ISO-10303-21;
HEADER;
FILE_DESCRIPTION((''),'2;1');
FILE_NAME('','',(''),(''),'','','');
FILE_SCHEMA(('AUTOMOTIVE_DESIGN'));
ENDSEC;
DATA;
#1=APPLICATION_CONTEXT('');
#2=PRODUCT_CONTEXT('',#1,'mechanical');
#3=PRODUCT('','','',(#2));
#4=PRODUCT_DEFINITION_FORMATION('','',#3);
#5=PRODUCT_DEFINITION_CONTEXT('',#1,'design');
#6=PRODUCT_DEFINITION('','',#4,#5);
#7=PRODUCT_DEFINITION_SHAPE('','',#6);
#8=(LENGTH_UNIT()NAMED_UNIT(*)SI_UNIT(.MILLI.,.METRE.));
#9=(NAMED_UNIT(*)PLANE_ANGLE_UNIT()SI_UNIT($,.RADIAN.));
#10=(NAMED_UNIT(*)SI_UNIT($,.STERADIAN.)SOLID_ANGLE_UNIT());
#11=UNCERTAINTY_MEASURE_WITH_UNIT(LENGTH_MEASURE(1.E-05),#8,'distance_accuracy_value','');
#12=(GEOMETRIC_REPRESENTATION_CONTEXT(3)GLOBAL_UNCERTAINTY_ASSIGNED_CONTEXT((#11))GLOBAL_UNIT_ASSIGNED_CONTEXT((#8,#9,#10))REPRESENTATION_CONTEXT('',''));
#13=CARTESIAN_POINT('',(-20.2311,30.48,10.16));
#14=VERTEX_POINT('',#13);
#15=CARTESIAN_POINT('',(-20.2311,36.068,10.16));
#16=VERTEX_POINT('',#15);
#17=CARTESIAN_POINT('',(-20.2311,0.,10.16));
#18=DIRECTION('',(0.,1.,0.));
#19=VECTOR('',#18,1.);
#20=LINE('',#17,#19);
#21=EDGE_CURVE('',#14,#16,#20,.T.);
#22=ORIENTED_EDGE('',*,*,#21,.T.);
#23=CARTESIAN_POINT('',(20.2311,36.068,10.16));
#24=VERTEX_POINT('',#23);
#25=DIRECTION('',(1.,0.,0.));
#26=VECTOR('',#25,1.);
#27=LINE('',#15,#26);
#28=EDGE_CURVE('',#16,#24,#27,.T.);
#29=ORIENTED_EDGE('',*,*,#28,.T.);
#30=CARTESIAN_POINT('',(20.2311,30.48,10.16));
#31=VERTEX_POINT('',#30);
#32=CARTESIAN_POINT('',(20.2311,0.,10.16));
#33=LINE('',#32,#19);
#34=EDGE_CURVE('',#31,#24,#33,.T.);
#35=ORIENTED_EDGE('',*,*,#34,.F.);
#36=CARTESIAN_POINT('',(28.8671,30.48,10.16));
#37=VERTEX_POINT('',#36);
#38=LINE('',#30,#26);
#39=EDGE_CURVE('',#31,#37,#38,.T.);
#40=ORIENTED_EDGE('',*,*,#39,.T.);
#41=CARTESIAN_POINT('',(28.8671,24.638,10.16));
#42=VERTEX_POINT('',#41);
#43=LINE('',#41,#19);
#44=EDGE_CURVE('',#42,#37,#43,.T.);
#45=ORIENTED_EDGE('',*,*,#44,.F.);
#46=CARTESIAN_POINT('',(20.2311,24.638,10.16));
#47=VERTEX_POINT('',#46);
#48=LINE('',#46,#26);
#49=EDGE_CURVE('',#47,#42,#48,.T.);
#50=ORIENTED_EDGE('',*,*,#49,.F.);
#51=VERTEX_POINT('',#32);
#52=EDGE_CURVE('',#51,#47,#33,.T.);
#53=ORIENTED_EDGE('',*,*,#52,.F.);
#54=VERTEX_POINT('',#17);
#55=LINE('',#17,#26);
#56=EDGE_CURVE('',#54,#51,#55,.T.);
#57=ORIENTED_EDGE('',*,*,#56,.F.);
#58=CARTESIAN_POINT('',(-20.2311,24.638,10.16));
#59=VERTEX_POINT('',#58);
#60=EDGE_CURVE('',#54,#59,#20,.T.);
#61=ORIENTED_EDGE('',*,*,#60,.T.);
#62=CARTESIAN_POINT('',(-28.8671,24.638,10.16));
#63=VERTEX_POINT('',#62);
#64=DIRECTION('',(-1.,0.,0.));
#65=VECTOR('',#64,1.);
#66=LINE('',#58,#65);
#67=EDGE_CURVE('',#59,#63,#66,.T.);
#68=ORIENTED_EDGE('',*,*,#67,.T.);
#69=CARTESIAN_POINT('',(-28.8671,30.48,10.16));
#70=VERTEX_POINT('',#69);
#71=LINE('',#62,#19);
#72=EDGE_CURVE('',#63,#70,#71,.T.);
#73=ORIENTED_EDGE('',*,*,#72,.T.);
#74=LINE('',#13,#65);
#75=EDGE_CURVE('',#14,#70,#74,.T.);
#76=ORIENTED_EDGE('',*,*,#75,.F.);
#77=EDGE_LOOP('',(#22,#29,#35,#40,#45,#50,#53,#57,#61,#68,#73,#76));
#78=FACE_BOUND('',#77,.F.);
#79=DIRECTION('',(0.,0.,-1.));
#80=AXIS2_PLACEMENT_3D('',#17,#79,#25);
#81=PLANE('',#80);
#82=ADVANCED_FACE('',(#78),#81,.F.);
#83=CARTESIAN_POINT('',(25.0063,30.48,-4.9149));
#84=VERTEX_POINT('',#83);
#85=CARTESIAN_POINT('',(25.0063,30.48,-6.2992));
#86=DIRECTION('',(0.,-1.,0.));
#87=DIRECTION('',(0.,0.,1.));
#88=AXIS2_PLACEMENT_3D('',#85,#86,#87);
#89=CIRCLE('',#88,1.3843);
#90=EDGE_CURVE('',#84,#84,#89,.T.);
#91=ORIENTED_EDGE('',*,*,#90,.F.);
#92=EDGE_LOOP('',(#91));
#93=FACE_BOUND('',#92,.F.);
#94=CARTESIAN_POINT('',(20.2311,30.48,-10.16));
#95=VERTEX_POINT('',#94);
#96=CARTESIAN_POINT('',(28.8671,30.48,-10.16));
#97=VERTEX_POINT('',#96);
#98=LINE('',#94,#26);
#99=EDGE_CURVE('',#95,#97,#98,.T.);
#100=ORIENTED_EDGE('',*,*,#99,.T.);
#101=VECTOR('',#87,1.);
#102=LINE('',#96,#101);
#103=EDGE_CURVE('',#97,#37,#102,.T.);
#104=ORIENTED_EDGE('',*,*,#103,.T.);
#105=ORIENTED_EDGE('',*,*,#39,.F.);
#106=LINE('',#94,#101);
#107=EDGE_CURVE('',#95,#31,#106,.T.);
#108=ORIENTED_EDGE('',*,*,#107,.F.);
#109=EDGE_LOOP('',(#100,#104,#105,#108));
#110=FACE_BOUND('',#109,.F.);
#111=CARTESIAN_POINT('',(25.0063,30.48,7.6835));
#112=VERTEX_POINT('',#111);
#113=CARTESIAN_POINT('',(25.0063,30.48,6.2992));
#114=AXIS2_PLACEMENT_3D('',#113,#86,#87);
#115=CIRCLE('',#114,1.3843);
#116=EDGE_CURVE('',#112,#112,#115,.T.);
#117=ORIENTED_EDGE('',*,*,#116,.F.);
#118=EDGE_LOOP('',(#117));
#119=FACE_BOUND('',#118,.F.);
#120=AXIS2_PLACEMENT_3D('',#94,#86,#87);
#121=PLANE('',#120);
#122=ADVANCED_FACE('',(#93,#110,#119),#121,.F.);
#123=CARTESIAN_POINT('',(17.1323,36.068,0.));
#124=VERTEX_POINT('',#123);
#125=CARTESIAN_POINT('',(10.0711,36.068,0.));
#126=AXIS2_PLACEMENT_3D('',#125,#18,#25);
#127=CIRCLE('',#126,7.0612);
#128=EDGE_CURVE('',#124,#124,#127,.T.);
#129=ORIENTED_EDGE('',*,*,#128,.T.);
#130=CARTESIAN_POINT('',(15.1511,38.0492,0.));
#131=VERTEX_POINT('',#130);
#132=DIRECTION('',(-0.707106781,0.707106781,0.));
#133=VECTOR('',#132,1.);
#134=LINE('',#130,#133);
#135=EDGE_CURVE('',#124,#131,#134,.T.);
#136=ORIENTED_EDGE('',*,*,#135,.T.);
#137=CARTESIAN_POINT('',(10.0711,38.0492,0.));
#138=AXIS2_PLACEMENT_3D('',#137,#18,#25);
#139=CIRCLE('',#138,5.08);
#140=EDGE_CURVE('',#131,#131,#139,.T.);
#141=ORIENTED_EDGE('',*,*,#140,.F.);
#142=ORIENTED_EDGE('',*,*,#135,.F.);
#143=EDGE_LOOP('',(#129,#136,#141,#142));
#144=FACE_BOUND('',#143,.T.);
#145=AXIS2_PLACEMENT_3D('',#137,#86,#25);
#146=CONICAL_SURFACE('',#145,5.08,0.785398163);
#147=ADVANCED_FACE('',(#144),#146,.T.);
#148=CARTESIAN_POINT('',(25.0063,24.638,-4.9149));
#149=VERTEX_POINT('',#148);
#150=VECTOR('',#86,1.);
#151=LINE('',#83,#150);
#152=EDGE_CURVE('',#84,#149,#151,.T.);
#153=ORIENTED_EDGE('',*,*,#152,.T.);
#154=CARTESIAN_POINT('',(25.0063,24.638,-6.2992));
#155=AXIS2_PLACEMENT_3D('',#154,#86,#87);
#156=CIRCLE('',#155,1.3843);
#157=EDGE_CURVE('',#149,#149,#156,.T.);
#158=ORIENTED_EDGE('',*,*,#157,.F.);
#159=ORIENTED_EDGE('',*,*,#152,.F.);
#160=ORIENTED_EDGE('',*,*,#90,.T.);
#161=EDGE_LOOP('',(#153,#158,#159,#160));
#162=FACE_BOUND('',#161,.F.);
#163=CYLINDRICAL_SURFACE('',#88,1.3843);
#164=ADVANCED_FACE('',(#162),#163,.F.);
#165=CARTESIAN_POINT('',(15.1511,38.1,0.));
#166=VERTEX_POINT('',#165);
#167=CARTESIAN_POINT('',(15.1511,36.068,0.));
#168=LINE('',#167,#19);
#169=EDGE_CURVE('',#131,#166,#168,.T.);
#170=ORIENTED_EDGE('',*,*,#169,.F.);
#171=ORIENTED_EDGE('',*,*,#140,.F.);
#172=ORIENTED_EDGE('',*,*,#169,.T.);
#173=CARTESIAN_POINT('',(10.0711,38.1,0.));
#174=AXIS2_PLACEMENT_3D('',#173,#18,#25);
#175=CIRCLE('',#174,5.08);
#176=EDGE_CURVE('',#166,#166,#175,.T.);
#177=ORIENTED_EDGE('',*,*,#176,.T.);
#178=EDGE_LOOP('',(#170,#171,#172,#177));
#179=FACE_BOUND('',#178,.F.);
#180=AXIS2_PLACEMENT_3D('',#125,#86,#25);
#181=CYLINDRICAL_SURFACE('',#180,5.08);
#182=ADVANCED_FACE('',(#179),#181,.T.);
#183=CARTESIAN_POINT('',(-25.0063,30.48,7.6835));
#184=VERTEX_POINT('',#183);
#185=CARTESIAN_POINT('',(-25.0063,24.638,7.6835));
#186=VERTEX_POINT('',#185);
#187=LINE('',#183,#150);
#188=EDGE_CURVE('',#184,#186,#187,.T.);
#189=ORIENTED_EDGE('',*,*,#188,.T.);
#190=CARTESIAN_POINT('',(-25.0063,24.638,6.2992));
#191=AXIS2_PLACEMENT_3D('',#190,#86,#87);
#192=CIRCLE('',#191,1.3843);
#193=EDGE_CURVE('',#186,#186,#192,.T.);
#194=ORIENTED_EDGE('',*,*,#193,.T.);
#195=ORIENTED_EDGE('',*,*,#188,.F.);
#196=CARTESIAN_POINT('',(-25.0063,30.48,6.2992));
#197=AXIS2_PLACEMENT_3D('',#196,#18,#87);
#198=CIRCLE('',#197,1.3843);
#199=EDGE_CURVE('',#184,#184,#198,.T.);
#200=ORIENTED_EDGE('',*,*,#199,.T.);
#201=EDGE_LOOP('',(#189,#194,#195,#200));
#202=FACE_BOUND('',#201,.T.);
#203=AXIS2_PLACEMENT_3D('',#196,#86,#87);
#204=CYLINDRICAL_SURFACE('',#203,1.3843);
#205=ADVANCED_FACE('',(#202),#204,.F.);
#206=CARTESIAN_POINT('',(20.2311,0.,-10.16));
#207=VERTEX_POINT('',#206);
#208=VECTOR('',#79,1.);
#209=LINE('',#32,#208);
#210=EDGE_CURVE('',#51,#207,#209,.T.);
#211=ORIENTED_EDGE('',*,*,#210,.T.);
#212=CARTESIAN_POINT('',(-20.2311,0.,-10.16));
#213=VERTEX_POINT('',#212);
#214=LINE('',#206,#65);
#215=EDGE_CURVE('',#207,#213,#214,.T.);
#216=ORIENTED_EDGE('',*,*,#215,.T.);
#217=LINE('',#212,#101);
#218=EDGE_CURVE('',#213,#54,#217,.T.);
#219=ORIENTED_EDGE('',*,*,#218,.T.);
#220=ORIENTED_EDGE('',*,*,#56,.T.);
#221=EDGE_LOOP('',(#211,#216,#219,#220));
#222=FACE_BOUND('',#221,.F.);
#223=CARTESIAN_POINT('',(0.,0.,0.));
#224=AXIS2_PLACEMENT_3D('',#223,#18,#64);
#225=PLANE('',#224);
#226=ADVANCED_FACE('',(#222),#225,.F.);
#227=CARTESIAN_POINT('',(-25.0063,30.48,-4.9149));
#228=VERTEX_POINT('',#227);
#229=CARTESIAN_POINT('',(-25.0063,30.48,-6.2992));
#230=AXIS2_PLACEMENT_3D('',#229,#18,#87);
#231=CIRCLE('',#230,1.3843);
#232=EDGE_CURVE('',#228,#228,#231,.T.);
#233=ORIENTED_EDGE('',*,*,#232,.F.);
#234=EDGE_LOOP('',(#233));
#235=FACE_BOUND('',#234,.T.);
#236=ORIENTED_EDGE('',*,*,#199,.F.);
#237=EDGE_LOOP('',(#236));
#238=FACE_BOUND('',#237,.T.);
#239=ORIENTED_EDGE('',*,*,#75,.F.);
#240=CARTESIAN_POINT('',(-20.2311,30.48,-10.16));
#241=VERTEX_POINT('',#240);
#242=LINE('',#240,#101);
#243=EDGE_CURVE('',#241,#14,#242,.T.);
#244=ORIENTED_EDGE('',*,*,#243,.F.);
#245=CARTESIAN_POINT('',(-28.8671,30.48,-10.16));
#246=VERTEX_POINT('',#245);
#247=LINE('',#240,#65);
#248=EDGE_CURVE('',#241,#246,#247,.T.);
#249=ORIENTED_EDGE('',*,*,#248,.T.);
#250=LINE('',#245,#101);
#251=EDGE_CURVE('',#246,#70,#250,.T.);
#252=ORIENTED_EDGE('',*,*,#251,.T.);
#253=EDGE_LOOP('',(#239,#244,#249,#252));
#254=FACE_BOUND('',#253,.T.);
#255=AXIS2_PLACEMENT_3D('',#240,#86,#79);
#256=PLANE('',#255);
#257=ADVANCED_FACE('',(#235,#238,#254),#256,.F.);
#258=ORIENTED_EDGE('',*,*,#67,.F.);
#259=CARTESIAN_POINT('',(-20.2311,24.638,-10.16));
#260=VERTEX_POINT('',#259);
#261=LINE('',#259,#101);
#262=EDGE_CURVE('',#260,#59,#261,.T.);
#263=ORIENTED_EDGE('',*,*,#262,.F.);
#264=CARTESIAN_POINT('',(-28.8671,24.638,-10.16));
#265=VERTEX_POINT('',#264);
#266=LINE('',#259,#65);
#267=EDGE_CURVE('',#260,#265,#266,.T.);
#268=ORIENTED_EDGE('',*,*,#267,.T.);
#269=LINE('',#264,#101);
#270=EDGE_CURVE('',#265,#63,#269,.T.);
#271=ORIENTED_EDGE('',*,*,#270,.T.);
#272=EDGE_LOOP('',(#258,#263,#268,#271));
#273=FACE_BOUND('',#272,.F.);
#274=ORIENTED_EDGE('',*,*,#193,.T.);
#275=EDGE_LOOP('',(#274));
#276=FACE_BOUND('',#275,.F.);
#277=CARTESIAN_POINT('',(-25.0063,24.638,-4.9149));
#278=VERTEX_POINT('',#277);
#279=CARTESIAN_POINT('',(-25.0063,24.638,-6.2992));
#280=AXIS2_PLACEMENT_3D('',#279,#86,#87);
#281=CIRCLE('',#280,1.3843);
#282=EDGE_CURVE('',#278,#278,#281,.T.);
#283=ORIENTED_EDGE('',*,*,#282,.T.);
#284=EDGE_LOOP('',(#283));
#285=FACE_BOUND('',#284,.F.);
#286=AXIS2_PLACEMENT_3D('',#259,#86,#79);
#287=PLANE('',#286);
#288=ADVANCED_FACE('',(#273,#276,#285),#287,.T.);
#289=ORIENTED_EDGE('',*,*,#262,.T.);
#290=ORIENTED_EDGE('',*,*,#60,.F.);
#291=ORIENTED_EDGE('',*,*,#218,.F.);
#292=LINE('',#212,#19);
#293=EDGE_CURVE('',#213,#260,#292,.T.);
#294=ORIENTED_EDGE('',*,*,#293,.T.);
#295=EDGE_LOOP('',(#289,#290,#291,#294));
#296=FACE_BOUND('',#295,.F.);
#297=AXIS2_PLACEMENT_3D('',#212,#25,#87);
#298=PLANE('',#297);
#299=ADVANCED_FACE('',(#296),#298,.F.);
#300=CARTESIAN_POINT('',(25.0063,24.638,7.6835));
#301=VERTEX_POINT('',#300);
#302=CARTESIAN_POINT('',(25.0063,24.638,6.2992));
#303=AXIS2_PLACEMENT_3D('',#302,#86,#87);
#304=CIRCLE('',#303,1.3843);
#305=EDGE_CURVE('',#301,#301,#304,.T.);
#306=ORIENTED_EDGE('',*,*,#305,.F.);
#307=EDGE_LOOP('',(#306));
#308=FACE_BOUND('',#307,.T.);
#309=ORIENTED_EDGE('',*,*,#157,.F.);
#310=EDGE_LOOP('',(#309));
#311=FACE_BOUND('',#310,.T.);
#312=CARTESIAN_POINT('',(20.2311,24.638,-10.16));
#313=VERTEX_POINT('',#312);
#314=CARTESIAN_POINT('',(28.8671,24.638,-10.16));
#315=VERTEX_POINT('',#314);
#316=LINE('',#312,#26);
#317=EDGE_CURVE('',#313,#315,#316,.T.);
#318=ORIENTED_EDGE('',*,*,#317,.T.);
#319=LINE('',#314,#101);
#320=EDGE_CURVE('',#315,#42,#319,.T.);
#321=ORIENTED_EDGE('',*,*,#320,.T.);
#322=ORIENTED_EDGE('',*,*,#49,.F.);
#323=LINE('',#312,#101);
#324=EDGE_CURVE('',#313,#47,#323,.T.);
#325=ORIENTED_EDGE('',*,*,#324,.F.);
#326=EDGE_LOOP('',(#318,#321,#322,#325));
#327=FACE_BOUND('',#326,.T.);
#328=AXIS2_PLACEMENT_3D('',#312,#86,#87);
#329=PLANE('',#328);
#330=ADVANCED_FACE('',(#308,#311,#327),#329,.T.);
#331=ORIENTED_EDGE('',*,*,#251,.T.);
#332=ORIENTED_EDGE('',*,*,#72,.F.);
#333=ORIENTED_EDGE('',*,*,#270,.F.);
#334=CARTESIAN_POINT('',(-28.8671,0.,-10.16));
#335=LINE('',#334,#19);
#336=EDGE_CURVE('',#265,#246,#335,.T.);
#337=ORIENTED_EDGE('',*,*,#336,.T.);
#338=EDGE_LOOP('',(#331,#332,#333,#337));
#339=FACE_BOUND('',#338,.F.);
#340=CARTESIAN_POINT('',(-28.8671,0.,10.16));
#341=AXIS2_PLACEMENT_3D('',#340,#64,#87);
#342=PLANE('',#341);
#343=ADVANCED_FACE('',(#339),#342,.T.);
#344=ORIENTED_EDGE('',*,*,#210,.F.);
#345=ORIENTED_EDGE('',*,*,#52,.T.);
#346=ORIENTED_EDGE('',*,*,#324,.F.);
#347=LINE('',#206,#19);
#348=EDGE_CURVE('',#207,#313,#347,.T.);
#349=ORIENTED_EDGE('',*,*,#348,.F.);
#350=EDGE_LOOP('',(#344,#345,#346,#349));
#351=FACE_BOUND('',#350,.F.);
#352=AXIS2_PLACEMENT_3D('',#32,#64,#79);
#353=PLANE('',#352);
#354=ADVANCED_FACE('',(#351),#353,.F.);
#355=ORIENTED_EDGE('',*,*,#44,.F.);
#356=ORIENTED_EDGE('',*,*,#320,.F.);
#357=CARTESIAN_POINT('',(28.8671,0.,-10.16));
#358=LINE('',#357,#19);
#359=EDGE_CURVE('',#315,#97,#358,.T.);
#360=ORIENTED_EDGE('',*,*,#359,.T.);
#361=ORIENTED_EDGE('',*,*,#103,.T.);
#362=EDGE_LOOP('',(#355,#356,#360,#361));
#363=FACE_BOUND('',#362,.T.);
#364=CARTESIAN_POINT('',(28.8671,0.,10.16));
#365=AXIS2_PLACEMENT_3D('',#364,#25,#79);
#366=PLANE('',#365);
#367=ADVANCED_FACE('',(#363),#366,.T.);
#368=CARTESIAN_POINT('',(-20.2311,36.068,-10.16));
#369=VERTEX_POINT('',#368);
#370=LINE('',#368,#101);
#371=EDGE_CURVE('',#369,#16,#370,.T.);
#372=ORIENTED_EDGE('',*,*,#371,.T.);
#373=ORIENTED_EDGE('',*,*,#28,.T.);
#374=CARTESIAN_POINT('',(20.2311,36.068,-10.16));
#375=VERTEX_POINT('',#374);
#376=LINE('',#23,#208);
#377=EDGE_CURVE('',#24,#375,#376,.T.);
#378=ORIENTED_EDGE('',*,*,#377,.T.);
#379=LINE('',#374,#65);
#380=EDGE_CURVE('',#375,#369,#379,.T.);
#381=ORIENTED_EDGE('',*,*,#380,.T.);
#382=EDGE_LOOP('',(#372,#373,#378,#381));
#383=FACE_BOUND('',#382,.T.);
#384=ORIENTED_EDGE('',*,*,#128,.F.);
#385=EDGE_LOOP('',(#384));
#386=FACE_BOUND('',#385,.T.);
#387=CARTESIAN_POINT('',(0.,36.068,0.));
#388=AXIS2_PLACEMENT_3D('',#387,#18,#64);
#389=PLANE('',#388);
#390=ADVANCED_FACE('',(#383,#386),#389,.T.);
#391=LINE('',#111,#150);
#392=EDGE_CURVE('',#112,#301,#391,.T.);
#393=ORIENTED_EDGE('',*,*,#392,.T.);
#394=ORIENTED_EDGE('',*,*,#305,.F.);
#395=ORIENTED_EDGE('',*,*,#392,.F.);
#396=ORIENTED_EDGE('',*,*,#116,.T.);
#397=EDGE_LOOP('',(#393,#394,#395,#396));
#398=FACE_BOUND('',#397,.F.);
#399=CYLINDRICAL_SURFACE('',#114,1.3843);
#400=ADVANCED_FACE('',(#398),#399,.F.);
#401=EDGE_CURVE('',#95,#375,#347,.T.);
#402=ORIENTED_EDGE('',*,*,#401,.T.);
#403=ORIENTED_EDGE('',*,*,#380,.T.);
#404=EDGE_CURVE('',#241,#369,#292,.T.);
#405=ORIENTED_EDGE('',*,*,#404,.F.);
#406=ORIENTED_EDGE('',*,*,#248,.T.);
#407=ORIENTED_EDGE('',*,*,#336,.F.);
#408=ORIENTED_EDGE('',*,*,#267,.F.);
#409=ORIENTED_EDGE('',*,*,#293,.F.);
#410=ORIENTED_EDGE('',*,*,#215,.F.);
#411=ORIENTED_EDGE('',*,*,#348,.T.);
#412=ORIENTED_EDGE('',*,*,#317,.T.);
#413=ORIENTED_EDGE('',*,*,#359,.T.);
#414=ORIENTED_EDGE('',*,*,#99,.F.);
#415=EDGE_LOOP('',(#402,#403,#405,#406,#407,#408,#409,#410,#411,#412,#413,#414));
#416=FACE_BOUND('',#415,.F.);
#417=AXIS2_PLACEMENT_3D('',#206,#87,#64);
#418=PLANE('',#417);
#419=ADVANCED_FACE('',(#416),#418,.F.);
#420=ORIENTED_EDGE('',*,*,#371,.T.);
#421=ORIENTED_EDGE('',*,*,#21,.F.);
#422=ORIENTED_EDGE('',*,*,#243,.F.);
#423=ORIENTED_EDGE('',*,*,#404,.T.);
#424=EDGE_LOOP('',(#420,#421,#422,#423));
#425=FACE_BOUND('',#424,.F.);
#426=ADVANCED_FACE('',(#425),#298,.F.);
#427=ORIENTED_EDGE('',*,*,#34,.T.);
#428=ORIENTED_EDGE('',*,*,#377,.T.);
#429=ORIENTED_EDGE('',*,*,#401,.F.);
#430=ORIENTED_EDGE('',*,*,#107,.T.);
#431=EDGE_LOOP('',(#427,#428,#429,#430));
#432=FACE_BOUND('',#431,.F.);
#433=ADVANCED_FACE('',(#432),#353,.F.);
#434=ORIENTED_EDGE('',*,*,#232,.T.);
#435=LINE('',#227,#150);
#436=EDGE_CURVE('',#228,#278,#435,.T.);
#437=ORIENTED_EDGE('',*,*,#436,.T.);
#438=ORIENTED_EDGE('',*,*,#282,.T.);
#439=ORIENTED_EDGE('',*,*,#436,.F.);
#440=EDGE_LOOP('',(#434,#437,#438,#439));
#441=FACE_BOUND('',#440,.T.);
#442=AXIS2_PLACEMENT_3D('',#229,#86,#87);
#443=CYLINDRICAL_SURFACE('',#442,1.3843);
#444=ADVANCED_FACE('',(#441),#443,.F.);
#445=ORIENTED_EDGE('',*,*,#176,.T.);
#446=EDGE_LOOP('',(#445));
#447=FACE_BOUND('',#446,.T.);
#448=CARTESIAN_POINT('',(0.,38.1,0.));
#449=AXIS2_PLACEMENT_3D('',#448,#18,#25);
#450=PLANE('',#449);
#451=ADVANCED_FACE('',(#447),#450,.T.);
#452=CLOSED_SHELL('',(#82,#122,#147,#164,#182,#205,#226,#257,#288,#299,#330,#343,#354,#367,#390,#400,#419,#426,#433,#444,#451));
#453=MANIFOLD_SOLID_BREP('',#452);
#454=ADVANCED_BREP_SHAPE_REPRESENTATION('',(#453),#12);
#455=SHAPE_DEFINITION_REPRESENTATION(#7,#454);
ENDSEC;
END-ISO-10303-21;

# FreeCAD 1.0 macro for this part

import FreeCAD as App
import Part
import Sketcher

V = App.Vector
Q = App.Units.Quantity


def edges_at(feature, points):
    """Names of the edges that pass closest to the given points."""
    edges = feature.Shape.Edges
    near = lambda p: min(range(len(edges)), key=lambda i: edges[i].distToShape(Part.Vertex(*p))[0])
    return sorted({f"Edge{near(p) + 1}" for p in points})

doc = App.newDocument("Part")
body = doc.addObject("PartDesign::Body", "Body")

# Sketch on XZ plane
sketch1 = body.newObject("Sketcher::SketchObject", "Sketch")
sketch1.AttachmentSupport = (doc.getObject("XZ_Plane"), [""])
sketch1.MapMode = "FlatFace"
sketch1.addGeometry([
    Part.LineSegment(V(20.2311, 10.16, 0), V(20.2311, -10.16, 0)),
    Part.LineSegment(V(20.2311, -10.16, 0), V(-20.2311, -10.16, 0)),
    Part.LineSegment(V(-20.2311, -10.16, 0), V(-20.2311, 10.16, 0)),
    Part.LineSegment(V(-20.2311, 10.16, 0), V(20.2311, 10.16, 0)),
], False)
sketch1.addConstraint([
    Sketcher.Constraint("Coincident", 0, 2, 1, 1),
    Sketcher.Constraint("Coincident", 1, 2, 2, 1),
    Sketcher.Constraint("Coincident", 2, 2, 3, 1),
    Sketcher.Constraint("Coincident", 3, 2, 0, 1),
    Sketcher.Constraint("Vertical", 0),
    Sketcher.Constraint("Horizontal", 1),
    Sketcher.Constraint("Vertical", 2),
    Sketcher.Constraint("Horizontal", 3),
    Sketcher.Constraint("Symmetric", 0, 2, 2, 2, -1, 1),
    Sketcher.Constraint("DistanceY", 0, 2, 0, 1, Q("0.8 in")),
    Sketcher.Constraint("DistanceX", 1, 2, 1, 1, Q("1.593 in")),
])
pad1 = body.newObject("PartDesign::Pad", "Pad")
pad1.Profile = sketch1
pad1.Length = Q("1.42 in")
pad1.Reversed = True

# Sketch on XZ plane
sketch2 = body.newObject("Sketcher::SketchObject", "Sketch001")
sketch2.AttachmentSupport = (doc.getObject("XZ_Plane"), [""])
sketch2.MapMode = "FlatFace"
sketch2.AttachmentOffset = App.Placement(V(0, 0, -1.42 * 25.4), App.Rotation())
sketch2.addGeometry(Part.Circle(V(10.0711, 0, 0), V(0, 0, 1), 5.08), False)
sketch2.addConstraint([
    Sketcher.Constraint("PointOnObject", 0, 3, -1),
    Sketcher.Constraint("Diameter", 0, Q("0.4 in")),
    Sketcher.Constraint("DistanceX", -1, 1, 0, 3, Q("0.3965 in")),
])
pad2 = body.newObject("PartDesign::Pad", "Pad001")
pad2.Profile = sketch2
pad2.Length = Q("0.08 in")
pad2.Reversed = True
doc.recompute()

chamfer = body.newObject("PartDesign::Chamfer", "Chamfer")
chamfer.Base = (pad2, edges_at(pad2, [(4.991, 36.068, 0)]))
chamfer.Size = Q("0.078 in")

# Sketch on YZ plane
sketch3 = body.newObject("Sketcher::SketchObject", "Sketch002")
sketch3.AttachmentSupport = (doc.getObject("YZ_Plane"), [""])
sketch3.MapMode = "FlatFace"
sketch3.AttachmentOffset = App.Placement(V(0, 0, 0.7965 * 25.4), App.Rotation())
sketch3.addGeometry([
    Part.LineSegment(V(24.638, 10.16, 0), V(24.638, -10.16, 0)),
    Part.LineSegment(V(24.638, -10.16, 0), V(30.48, -10.16, 0)),
    Part.LineSegment(V(30.48, -10.16, 0), V(30.48, 10.16, 0)),
    Part.LineSegment(V(30.48, 10.16, 0), V(24.638, 10.16, 0)),
], False)
sketch3.addConstraint([
    Sketcher.Constraint("Coincident", 0, 2, 1, 1),
    Sketcher.Constraint("Coincident", 1, 2, 2, 1),
    Sketcher.Constraint("Coincident", 2, 2, 3, 1),
    Sketcher.Constraint("Coincident", 3, 2, 0, 1),
    Sketcher.Constraint("Vertical", 0),
    Sketcher.Constraint("Horizontal", 1),
    Sketcher.Constraint("Vertical", 2),
    Sketcher.Constraint("Horizontal", 3),
    Sketcher.Constraint("DistanceX", 1, 1, 1, 2, Q("0.23 in")),
    Sketcher.Constraint("DistanceY", 0, 2, 0, 1, Q("0.8 in")),
    Sketcher.Constraint("DistanceY", 0, 2, -1, 1, Q("0.4 in")),
    Sketcher.Constraint("DistanceX", -1, 1, 1, 2, Q("1.2 in")),
])
pad3 = body.newObject("PartDesign::Pad", "Pad002")
pad3.Profile = sketch3
pad3.Length = Q("0.34 in")

# Sketch on XZ plane
sketch4 = body.newObject("Sketcher::SketchObject", "Sketch003")
sketch4.AttachmentSupport = (doc.getObject("XZ_Plane"), [""])
sketch4.MapMode = "FlatFace"
sketch4.AttachmentOffset = App.Placement(V(0, 0, -1.2 * 25.4), App.Rotation())
sketch4.addGeometry([
    Part.Circle(V(25.0063, -6.2992, 0), V(0, 0, 1), 1.3843),
    Part.Circle(V(25.0063, 6.2992, 0), V(0, 0, 1), 1.3843),
], False)
sketch4.addConstraint([
    Sketcher.Constraint("Equal", 0, 1),
    Sketcher.Constraint("Symmetric", 0, 3, 1, 3, -1),
    Sketcher.Constraint("Diameter", 0, Q("0.109 in")),
    Sketcher.Constraint("DistanceY", 0, 3, -1, 1, Q("0.248 in")),
    Sketcher.Constraint("DistanceX", -1, 1, 0, 3, Q("0.9845 in")),
])
doc.recompute()
hole = body.newObject("PartDesign::Hole", "Hole")
hole.Profile = sketch4
hole.ThreadType = "None"
hole.Diameter = Q("0.109 in")
hole.DepthType = "ThroughAll"
hole.Reversed = True
doc.recompute()

mirrored = body.newObject("PartDesign::Mirrored", "Mirrored")
mirrored.Originals = [pad3, hole]
mirrored.MirrorPlane = (doc.getObject("YZ_Plane"), [""])
body.Tip = mirrored

doc.recompute()
